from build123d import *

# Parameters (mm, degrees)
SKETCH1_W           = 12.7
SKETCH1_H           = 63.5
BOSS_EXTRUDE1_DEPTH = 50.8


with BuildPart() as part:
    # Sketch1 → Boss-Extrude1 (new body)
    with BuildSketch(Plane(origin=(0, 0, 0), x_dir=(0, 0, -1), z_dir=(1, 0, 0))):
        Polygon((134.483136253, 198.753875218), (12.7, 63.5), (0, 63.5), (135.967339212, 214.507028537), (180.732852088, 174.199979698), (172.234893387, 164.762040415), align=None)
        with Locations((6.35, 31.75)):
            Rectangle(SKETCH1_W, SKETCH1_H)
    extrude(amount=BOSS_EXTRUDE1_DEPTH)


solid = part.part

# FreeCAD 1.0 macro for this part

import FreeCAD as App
import Part
import Sketcher
from FreeCAD import Vector
Q = App.Units.Quantity


def add_polygon(sketch, points):
    """Adds a closed chain of lines whose ends are joined by coincident constraints."""
    first, n = sketch.GeometryCount, len(points)
    for a, b in zip(points, points[1:] + points[:1]):
        sketch.addGeometry(Part.LineSegment(App.Vector(*a, 0), App.Vector(*b, 0)), False)
    for i in range(n):
        sketch.addConstraint(Sketcher.Constraint("Coincident", first + i, 2, first + (i + 1) % n, 1))

doc = App.newDocument("Part")
body = doc.addObject("PartDesign::Body", "Body")

sketch1 = doc.addObject("Sketcher::SketchObject", "Sketch")
body.addObject(sketch1)
sketch1.AttachmentSupport = (doc.YZ_Plane, [""])
sketch1.MapMode = "FlatFace"
add_polygon(sketch1, [(64, -13), (199, -134), (165, -172), (174, -181), (215, -136), (64, 0), (0, 0), (0, -13)])
sketch1.addConstraint([
    Sketcher.Constraint("Horizontal", 5),
    Sketcher.Constraint("Vertical", 6),
    Sketcher.Constraint("Horizontal", 7),
    Sketcher.Constraint("Coincident", 5, 2, -1, 1),
    Sketcher.Constraint("Perpendicular", 0, 1),
    Sketcher.Constraint("Perpendicular", 1, 2),
    Sketcher.Constraint("Perpendicular", 2, 3),
    Sketcher.Constraint("Perpendicular", 3, 4),
    Sketcher.Constraint("Vertical", 4, 2, 7, 2),
    Sketcher.Constraint("Distance", 1, Q("2 in")),
    Sketcher.Constraint("Distance", 4, Q("8 in")),
    Sketcher.Constraint("DistanceX", 5, 2, 5, 1, Q("2.5 in")),
    Sketcher.Constraint("DistanceY", 6, 2, 6, 1, Q("0.5 in")),
    Sketcher.Constraint("Angle", 0, Q("-42 deg")),
    Sketcher.Constraint("Distance", 2, Q("0.5 in")),
])
pad1 = doc.addObject("PartDesign::Pad", "Pad")
body.addObject(pad1)
pad1.Profile = sketch1
pad1.Length = Q("2 in")

doc.recompute()
